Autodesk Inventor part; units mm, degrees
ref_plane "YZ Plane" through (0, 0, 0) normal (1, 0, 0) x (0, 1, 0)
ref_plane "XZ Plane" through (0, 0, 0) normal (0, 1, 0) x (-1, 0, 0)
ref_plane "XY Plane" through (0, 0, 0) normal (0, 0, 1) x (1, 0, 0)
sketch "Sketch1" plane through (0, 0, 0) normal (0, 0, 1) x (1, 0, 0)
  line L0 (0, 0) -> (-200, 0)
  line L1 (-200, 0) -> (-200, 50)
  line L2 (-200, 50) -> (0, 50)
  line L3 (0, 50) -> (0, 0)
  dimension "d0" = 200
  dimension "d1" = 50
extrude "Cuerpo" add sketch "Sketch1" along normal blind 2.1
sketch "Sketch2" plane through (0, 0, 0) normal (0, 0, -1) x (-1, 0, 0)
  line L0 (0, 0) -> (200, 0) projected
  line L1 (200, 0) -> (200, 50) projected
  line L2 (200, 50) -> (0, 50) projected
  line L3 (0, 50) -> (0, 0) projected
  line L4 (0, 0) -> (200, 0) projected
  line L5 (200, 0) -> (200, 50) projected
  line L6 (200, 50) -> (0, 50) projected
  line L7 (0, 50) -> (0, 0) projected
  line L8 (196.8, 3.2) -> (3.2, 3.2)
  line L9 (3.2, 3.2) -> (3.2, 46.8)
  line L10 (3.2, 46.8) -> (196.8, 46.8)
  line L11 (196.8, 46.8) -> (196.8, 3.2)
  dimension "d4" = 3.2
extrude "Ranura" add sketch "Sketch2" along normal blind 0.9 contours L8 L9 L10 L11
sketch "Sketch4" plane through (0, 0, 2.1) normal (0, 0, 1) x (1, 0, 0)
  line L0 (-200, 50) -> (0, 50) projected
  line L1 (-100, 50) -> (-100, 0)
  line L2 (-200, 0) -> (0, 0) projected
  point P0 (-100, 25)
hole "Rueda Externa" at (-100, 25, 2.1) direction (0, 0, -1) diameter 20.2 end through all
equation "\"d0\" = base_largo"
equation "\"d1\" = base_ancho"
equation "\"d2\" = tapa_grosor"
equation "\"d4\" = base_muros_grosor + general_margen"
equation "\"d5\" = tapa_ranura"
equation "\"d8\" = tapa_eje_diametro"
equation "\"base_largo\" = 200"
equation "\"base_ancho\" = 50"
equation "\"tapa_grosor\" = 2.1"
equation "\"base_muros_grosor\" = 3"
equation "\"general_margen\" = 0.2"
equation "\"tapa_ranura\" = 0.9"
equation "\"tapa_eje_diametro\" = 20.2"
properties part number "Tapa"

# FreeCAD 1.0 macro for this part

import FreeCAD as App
import Part
import Sketcher

V = App.Vector

doc = App.newDocument("Part")
body = doc.addObject("PartDesign::Body", "Body")

# Sketch on XY plane
sketch1 = body.newObject("Sketcher::SketchObject", "Sketch")
sketch1.AttachmentSupport = (doc.getObject("XY_Plane"), [""])
sketch1.MapMode = "FlatFace"
sketch1.addGeometry(Part.LineSegment(V(-200, 0, 0), V(0, 0, 0)), False)
sketch1.addGeometry(Part.LineSegment(V(0, 0, 0), V(0, 50, 0)), False)
sketch1.addGeometry(Part.LineSegment(V(0, 50, 0), V(-200, 50, 0)), False)
sketch1.addGeometry(Part.LineSegment(V(-200, 50, 0), V(-200, 0, 0)), False)
sketch1.addConstraint(Sketcher.Constraint("Coincident", 0, 2, 1, 1))
sketch1.addConstraint(Sketcher.Constraint("Coincident", 1, 2, 2, 1))
sketch1.addConstraint(Sketcher.Constraint("Coincident", 2, 2, 3, 1))
sketch1.addConstraint(Sketcher.Constraint("Coincident", 3, 2, 0, 1))
sketch1.addConstraint(Sketcher.Constraint("Horizontal", 0))
sketch1.addConstraint(Sketcher.Constraint("Vertical", 1))
sketch1.addConstraint(Sketcher.Constraint("Horizontal", 2))
sketch1.addConstraint(Sketcher.Constraint("Vertical", 3))
sketch1.addConstraint(Sketcher.Constraint("Coincident", 0, 2, -1, 1))
sketch1.addConstraint(Sketcher.Constraint("DistanceX", 0, 1, 0, 2, 200.0))
sketch1.addConstraint(Sketcher.Constraint("DistanceY", 1, 1, 1, 2, 50.0))
pad1 = body.newObject("PartDesign::Pad", "Pad")
pad1.Profile = sketch1
pad1.Length = 2.1

# Sketch on XY plane
sketch2 = body.newObject("Sketcher::SketchObject", "Sketch001")
sketch2.AttachmentSupport = (doc.getObject("XY_Plane"), [""])
sketch2.MapMode = "FlatFace"
sketch2.addGeometry(Part.LineSegment(V(-3, 3, 0), V(-197, 3, 0)), False)
sketch2.addGeometry(Part.LineSegment(V(-197, 3, 0), V(-197, 47, 0)), False)
sketch2.addGeometry(Part.LineSegment(V(-197, 47, 0), V(-3, 47, 0)), False)
sketch2.addGeometry(Part.LineSegment(V(-3, 47, 0), V(-3, 3, 0)), False)
sketch2.addConstraint(Sketcher.Constraint("Coincident", 0, 2, 1, 1))
sketch2.addConstraint(Sketcher.Constraint("Coincident", 1, 2, 2, 1))
sketch2.addConstraint(Sketcher.Constraint("Coincident", 2, 2, 3, 1))
sketch2.addConstraint(Sketcher.Constraint("Coincident", 3, 2, 0, 1))
sketch2.addConstraint(Sketcher.Constraint("Horizontal", 0))
sketch2.addConstraint(Sketcher.Constraint("Vertical", 1))
sketch2.addConstraint(Sketcher.Constraint("Horizontal", 2))
sketch2.addConstraint(Sketcher.Constraint("Vertical", 3))
sketch2.addConstraint(Sketcher.Constraint("DistanceY", -1, 1, 0, 2, 3.2))
sketch2.addConstraint(Sketcher.Constraint("DistanceX", 2, 2, -1, 1, 3.2))
sketch2.addConstraint(Sketcher.Constraint("DistanceX", 0, 2, 0, 1, 193.6))
sketch2.addConstraint(Sketcher.Constraint("DistanceY", 1, 1, 1, 2, 43.6))
pad2 = body.newObject("PartDesign::Pad", "Pad001")
pad2.Profile = sketch2
pad2.Length = 0.9
pad2.Reversed = True

# Sketch on XY plane
sketch3 = body.newObject("Sketcher::SketchObject", "Sketch002")
sketch3.AttachmentSupport = (doc.getObject("XY_Plane"), [""])
sketch3.MapMode = "FlatFace"
sketch3.AttachmentOffset = App.Placement(V(0, 0, 2.1), App.Rotation())
sketch3.addGeometry(Part.Circle(V(-100, 25, 0), V(0, 0, 1), 10), False)
sketch3.addConstraint(Sketcher.Constraint("Diameter", 0, 20.2))
sketch3.addConstraint(Sketcher.Constraint("DistanceX", 0, 3, -1, 1, 100.0))
sketch3.addConstraint(Sketcher.Constraint("DistanceY", -1, 1, 0, 3, 25.0))
doc.recompute()
hole = body.newObject("PartDesign::Hole", "Hole")
hole.Profile = sketch3
hole.ThreadType = "None"
hole.Diameter = 20.2
hole.DepthType = "ThroughAll"

doc.recompute()
